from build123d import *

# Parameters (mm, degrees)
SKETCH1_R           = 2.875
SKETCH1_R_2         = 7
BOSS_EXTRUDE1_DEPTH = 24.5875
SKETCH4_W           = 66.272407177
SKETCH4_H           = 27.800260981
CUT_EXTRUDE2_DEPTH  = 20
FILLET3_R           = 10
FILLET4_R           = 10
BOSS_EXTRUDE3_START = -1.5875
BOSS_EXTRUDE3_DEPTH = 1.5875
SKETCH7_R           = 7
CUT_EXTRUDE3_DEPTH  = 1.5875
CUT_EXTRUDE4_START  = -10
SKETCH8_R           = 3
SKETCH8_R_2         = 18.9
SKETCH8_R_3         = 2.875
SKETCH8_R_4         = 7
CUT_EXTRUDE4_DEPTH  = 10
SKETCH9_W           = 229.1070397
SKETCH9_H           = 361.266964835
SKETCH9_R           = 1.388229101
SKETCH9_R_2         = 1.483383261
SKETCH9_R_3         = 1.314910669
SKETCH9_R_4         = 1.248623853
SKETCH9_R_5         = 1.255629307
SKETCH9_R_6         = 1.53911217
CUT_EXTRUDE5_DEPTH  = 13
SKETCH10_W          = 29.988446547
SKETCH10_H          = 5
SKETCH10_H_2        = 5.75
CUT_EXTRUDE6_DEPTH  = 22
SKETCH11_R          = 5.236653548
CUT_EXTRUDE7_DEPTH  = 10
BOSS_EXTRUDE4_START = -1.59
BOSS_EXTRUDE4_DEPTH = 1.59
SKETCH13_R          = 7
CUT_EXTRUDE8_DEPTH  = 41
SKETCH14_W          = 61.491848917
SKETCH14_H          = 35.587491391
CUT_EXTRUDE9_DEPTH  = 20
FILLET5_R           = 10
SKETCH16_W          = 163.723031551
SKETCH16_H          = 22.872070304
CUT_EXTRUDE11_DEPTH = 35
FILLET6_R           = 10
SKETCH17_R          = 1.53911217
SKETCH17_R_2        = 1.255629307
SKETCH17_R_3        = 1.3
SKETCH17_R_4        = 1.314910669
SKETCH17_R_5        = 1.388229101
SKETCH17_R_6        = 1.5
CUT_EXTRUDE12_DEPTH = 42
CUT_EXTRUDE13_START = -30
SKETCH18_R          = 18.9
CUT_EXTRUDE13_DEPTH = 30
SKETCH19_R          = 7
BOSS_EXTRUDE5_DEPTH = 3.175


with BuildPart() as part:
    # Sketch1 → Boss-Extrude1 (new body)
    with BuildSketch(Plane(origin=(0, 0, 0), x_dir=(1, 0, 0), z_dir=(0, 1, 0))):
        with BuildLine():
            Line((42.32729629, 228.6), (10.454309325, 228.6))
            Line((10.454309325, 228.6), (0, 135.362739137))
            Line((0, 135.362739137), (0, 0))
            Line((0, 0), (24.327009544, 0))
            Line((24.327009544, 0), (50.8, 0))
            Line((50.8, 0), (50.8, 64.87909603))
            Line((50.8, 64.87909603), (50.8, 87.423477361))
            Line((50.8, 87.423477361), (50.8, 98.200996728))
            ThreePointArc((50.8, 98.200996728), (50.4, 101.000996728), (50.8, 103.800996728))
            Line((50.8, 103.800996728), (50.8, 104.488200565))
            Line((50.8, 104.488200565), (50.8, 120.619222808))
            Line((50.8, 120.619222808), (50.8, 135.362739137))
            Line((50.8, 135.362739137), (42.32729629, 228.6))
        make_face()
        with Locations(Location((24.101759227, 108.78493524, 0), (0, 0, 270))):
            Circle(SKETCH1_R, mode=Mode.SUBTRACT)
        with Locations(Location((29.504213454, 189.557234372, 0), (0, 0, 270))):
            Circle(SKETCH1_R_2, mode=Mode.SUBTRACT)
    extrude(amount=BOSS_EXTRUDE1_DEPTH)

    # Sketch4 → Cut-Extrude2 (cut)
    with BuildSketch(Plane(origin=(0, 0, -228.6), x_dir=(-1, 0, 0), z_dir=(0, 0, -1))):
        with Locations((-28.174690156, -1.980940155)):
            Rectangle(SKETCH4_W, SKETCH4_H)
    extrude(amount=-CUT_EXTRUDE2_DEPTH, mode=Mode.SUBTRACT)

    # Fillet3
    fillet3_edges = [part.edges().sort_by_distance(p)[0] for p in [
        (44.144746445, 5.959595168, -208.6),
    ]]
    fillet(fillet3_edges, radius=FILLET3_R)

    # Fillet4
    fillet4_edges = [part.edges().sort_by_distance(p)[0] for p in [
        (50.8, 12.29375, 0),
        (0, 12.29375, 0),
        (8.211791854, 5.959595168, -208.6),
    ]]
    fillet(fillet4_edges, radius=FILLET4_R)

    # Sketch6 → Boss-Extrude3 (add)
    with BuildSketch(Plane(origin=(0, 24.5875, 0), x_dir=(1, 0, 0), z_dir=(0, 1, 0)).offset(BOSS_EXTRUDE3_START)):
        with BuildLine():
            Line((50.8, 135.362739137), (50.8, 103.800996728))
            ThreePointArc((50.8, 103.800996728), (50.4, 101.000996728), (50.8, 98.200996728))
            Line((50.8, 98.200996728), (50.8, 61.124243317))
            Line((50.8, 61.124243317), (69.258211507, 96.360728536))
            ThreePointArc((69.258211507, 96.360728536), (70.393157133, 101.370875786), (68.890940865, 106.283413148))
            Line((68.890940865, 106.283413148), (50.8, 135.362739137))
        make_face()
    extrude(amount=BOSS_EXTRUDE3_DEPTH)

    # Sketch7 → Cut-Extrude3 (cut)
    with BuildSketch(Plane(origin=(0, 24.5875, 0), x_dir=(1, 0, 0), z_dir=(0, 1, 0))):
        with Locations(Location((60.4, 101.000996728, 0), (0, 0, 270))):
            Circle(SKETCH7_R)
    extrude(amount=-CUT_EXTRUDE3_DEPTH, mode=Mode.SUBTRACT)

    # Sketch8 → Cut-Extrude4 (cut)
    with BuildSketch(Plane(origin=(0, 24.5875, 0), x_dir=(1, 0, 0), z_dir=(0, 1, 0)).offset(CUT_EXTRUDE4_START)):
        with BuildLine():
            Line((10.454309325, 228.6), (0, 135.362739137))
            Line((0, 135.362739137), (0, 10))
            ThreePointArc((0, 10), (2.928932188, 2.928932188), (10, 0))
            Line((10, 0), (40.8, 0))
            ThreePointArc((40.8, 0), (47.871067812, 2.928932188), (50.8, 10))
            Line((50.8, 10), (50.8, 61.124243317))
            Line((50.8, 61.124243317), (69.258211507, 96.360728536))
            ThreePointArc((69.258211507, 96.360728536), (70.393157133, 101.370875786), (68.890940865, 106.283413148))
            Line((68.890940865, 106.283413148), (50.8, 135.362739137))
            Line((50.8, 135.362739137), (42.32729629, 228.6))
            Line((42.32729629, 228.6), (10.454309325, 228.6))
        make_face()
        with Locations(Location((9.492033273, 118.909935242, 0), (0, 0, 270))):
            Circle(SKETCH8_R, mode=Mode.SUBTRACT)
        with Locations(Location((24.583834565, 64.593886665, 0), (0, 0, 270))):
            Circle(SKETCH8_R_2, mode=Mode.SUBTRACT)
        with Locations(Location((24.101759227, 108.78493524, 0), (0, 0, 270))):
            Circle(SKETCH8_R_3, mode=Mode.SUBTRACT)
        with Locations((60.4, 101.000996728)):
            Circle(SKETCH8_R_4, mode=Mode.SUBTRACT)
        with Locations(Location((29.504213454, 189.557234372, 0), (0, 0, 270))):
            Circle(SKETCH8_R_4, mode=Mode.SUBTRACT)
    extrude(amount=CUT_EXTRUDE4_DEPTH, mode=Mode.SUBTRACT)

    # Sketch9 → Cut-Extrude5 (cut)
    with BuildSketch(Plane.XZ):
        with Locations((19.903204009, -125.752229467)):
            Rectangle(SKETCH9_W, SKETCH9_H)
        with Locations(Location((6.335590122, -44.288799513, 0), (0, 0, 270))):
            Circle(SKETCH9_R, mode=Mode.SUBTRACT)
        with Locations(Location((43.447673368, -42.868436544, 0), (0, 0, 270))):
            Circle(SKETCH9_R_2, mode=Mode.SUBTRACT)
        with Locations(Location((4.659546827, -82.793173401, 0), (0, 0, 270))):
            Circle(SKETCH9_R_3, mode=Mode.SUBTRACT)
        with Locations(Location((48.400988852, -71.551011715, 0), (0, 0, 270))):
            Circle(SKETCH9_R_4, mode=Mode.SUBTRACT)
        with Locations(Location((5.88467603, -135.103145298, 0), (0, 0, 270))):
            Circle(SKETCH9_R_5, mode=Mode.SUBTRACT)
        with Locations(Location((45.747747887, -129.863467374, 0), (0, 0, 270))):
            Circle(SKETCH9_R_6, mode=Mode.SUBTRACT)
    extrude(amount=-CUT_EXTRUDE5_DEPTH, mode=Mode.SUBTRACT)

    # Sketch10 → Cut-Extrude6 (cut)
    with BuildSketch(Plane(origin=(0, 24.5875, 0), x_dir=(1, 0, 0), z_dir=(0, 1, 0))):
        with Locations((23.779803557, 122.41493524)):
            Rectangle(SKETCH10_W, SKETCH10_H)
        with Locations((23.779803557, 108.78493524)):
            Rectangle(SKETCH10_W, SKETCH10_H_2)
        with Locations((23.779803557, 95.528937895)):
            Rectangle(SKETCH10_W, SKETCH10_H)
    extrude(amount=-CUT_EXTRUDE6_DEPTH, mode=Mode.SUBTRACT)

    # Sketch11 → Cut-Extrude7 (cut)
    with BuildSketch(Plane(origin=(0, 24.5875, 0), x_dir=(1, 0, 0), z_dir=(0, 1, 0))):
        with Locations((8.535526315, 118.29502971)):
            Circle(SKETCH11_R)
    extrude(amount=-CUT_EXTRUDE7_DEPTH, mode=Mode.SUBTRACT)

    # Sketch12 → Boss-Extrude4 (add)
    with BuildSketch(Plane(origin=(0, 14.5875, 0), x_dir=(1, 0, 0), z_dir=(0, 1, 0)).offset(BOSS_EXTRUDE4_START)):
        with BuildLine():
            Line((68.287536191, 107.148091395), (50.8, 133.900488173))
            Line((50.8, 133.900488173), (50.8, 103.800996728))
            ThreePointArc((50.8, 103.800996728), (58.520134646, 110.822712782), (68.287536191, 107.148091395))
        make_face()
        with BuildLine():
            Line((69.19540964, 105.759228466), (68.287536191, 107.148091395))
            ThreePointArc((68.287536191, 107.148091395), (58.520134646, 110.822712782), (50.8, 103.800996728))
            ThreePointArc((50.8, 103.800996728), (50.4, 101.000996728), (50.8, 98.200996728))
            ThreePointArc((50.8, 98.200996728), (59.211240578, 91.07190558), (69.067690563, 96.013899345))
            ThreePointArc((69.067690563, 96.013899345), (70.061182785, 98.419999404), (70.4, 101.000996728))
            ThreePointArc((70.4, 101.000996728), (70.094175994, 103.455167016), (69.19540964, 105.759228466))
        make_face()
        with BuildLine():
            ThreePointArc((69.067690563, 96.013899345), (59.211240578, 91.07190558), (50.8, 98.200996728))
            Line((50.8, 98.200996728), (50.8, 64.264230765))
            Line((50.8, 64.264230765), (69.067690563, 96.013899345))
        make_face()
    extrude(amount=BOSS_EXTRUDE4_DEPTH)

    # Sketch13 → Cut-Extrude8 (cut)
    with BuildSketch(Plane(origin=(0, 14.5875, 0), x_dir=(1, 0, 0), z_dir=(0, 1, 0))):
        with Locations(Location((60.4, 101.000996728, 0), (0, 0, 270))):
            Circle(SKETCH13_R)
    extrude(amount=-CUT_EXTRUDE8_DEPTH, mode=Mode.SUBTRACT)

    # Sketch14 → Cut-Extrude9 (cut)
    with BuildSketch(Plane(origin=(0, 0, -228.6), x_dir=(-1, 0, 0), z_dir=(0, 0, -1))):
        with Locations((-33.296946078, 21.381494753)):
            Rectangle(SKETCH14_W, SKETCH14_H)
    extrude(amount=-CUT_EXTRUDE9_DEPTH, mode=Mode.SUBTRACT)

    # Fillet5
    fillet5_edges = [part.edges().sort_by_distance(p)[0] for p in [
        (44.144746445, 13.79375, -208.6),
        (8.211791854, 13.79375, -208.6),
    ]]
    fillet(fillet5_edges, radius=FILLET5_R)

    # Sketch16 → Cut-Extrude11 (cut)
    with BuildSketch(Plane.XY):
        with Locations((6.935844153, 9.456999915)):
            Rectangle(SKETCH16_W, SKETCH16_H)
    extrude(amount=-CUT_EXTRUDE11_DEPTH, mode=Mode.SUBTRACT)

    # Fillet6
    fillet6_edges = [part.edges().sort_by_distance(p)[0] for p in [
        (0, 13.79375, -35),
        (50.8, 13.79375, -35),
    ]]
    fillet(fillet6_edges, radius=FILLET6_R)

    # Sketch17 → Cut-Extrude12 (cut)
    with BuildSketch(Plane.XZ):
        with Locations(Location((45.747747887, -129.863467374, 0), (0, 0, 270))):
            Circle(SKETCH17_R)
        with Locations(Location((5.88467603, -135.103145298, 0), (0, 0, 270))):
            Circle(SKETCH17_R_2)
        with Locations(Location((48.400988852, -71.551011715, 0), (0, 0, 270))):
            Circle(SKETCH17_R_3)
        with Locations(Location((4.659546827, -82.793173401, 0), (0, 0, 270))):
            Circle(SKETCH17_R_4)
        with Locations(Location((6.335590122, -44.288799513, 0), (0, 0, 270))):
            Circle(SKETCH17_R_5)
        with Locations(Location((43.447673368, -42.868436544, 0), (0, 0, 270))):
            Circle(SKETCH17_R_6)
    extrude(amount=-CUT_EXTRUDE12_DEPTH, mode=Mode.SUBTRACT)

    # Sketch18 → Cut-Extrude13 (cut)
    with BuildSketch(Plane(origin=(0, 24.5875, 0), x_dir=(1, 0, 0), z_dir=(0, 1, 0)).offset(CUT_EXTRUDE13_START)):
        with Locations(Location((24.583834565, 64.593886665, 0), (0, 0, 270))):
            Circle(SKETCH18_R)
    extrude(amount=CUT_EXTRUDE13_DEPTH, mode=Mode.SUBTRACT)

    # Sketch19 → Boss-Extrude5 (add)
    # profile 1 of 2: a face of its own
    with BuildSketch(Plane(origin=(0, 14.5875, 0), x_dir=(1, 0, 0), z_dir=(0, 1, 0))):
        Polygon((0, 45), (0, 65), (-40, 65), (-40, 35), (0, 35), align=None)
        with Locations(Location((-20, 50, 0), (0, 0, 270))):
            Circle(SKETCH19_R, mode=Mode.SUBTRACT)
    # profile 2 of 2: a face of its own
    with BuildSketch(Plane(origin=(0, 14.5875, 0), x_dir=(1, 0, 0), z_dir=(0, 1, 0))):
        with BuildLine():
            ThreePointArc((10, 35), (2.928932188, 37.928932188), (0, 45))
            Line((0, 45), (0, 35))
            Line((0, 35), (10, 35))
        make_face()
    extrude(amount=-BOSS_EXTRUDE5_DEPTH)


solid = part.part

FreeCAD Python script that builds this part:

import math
import FreeCAD as App
import Part
import Sketcher

V = App.Vector
Q = App.Units.Quantity


def edges_at(feature, points):
    """Names of the edges that pass closest to the given points."""
    edges = feature.Shape.Edges
    near = lambda p: min(range(len(edges)), key=lambda i: edges[i].distToShape(Part.Vertex(*p))[0])
    return sorted({f"Edge{near(p) + 1}" for p in points})

doc = App.newDocument("Part")
body = doc.addObject("PartDesign::Body", "Body")

sketch1 = doc.addObject("Sketcher::SketchObject", "Sketch")
body.addObject(sketch1)
sketch1.AttachmentSupport = (doc.XZ_Plane, [""])
sketch1.MapMode = "FlatFace"
sketch1.addGeometry([
    Part.LineSegment(V(42.3, -228.6, 0), V(10.5, -228.6, 0)),
    Part.LineSegment(V(10.5, -228.6, 0), V(0, -135.4, 0)),
    Part.LineSegment(V(0, -135.4, 0), V(0, 0, 0)),
    Part.LineSegment(V(0, 0, 0), V(50.8, 0, 0)),
    Part.LineSegment(V(50.8, 0, 0), V(50.8, -98.2, 0)),
    Part.ArcOfCircle(Part.Circle(V(60.4, -101, 0), V(0, 0, 1), 10), math.radians(164), math.radians(196)),
    Part.LineSegment(V(50.8, -103.8, 0), V(50.8, -135.4, 0)),
    Part.LineSegment(V(50.8, -135.4, 0), V(42.3, -228.6, 0)),
    Part.Circle(V(24.1, -108.8, 0), V(0, 0, 1), 2.9),
    Part.Circle(V(29.5, -189.6, 0), V(0, 0, 1), 7),
], False)
sketch1.addConstraint([
    Sketcher.Constraint("Coincident", 0, 2, 1, 1),
    Sketcher.Constraint("Coincident", 1, 2, 2, 1),
    Sketcher.Constraint("Coincident", 2, 2, 3, 1),
    Sketcher.Constraint("Coincident", 3, 2, 4, 1),
    Sketcher.Constraint("Coincident", 4, 2, 5, 1),
    Sketcher.Constraint("Coincident", 5, 2, 6, 1),
    Sketcher.Constraint("Coincident", 6, 2, 7, 1),
    Sketcher.Constraint("Coincident", 7, 2, 0, 1),
    Sketcher.Constraint("Horizontal", 0),
    Sketcher.Constraint("Vertical", 2),
    Sketcher.Constraint("Horizontal", 3),
    Sketcher.Constraint("Vertical", 4),
    Sketcher.Constraint("Vertical", 6),
    Sketcher.Constraint("Coincident", 2, 2, -1, 1),
    Sketcher.Constraint("Horizontal", 1, 2, 6, 2),
    Sketcher.Constraint("Vertical", 4, 2, 5, 2),
    Sketcher.Constraint("Diameter", 9, Q("14 mm")),
    Sketcher.Constraint("Radius", 5, Q("10 mm")),
    Sketcher.Constraint("Diameter", 8, Q("5.75 mm")),
    Sketcher.Constraint("DistanceX", 3, 1, 3, 2, Q("50.8 mm")),
    Sketcher.Constraint("DistanceX", -1, 1, 5, 3, Q("60.4 mm")),
    Sketcher.Constraint("DistanceY", 0, 2, -1, 1, Q("228.6 mm")),
    Sketcher.Constraint("DistanceY", 2, 1, 2, 2, Q("135.362739 mm")),
    Sketcher.Constraint("DistanceY", 9, 3, 8, 3, Q("80.772299 mm")),
    Sketcher.Constraint("Distance", 1, Q("93.821529 mm")),
    Sketcher.Constraint("DistanceX", 0, 2, 0, 1, Q("31.872987 mm")),
    Sketcher.Constraint("DistanceY", 4, 2, 4, 1, Q("98.200997 mm")),
    Sketcher.Constraint("DistanceX", -1, 1, 8, 3, Q("24.101759 mm")),
    Sketcher.Constraint("DistanceY", 8, 3, 5, 3, Q("7.783939 mm")),
    Sketcher.Constraint("DistanceX", -1, 1, 9, 3, Q("29.504213 mm")),
])
pad1 = doc.addObject("PartDesign::Pad", "Pad")
body.addObject(pad1)
pad1.Profile = sketch1
pad1.Length = 24.5875
pad1.Reversed = True

sketch2 = doc.addObject("Sketcher::SketchObject", "Sketch001")
body.addObject(sketch2)
sketch2.AttachmentSupport = (doc.XY_Plane, [""])
sketch2.MapMode = "FlatFace"
sketch2.AttachmentOffset = App.Placement(V(0, 0, -228.6), App.Rotation())
sketch2.addGeometry([
    Part.LineSegment(V(61, 12, 0), V(61, -16, 0)),
    Part.LineSegment(V(61, -16, 0), V(-5, -16, 0)),
    Part.LineSegment(V(-5, -16, 0), V(-5, 12, 0)),
    Part.LineSegment(V(-5, 12, 0), V(61, 12, 0)),
], False)
sketch2.addConstraint([
    Sketcher.Constraint("Coincident", 0, 2, 1, 1),
    Sketcher.Constraint("Coincident", 1, 2, 2, 1),
    Sketcher.Constraint("Coincident", 2, 2, 3, 1),
    Sketcher.Constraint("Coincident", 3, 2, 0, 1),
    Sketcher.Constraint("Vertical", 0),
    Sketcher.Constraint("Horizontal", 1),
    Sketcher.Constraint("Vertical", 2),
    Sketcher.Constraint("Horizontal", 3),
    Sketcher.Constraint("DistanceY", 0, 2, 0, 1, Q("27.800261 mm")),
    Sketcher.Constraint("DistanceX", 1, 2, 1, 1, Q("66.272407 mm")),
    Sketcher.Constraint("DistanceY", 0, 2, -1, 1, Q("15.881071 mm")),
    Sketcher.Constraint("DistanceX", -1, 1, 0, 2, Q("61.310894 mm")),
])
pocket1 = doc.addObject("PartDesign::Pocket", "Pocket")
body.addObject(pocket1)
pocket1.Profile = sketch2
pocket1.Length = 20
pocket1.Reversed = True
doc.recompute()

fillet = doc.addObject("PartDesign::Fillet", "Fillet")
body.addObject(fillet)
fillet.Base = (pocket1, edges_at(pocket1, [(44.145, 5.96, -208.6)]))
fillet.Radius = 10
doc.recompute()

fillet2 = doc.addObject("PartDesign::Fillet", "Fillet001")
body.addObject(fillet2)
fillet2.Base = (fillet, edges_at(fillet, [(50.8, 12.294, 0), (0, 12.294, 0), (8.212, 5.96, -208.6)]))
fillet2.Radius = 10

sketch3 = doc.addObject("Sketcher::SketchObject", "Sketch002")
body.addObject(sketch3)
sketch3.AttachmentSupport = (doc.XZ_Plane, [""])
sketch3.MapMode = "FlatFace"
sketch3.AttachmentOffset = App.Placement(V(0, 0, -23), App.Rotation())
sketch3.addGeometry([
    Part.LineSegment(V(51, -135, 0), V(51, -104, 0)),
    Part.ArcOfCircle(Part.Circle(V(60, -101, 0), V(0, 0, 1), 10), math.radians(164), math.radians(196)),
    Part.LineSegment(V(51, -98, 0), V(51, -61, 0)),
    Part.LineSegment(V(51, -61, 0), V(69, -96, 0)),
    Part.ArcOfCircle(Part.Circle(V(60, -101, 0), V(0, 0, 1), 10), math.radians(-32), math.radians(28)),
    Part.LineSegment(V(69, -106, 0), V(51, -135, 0)),
], False)
sketch3.addConstraint([
    Sketcher.Constraint("Coincident", 0, 2, 1, 2),
    Sketcher.Constraint("Coincident", 1, 1, 2, 1),
    Sketcher.Constraint("Coincident", 2, 2, 3, 1),
    Sketcher.Constraint("Tangent", 3, 2, 4, 2),
    Sketcher.Constraint("Tangent", 4, 1, 5, 1),
    Sketcher.Constraint("Coincident", 5, 2, 0, 1),
    Sketcher.Constraint("Vertical", 0),
    Sketcher.Constraint("Vertical", 2),
    Sketcher.Constraint("Coincident", 4, 3, 1, 3),
    Sketcher.Constraint("Equal", 1, 4),
    Sketcher.Constraint("Vertical", 0, 2, 1, 1),
    Sketcher.Constraint("Radius", 1, Q("10 mm")),
    Sketcher.Constraint("DistanceX", -1, 1, 1, 3, Q("60.4 mm")),
    Sketcher.Constraint("DistanceX", -1, 1, 0, 2, Q("50.8 mm")),
    Sketcher.Constraint("Distance", 3, Q("39.778329 mm")),
    Sketcher.Constraint("DistanceY", 0, 1, 0, 2, Q("31.561742 mm")),
    Sketcher.Constraint("DistanceY", 3, 2, -1, 1, Q("96.360729 mm")),
])
pad2 = doc.addObject("PartDesign::Pad", "Pad001")
body.addObject(pad2)
pad2.Profile = sketch3
pad2.Length = 1.5875
pad2.Reversed = True

sketch4 = doc.addObject("Sketcher::SketchObject", "Sketch003")
body.addObject(sketch4)
sketch4.AttachmentSupport = (doc.XZ_Plane, [""])
sketch4.MapMode = "FlatFace"
sketch4.AttachmentOffset = App.Placement(V(0, 0, -24.5875), App.Rotation())
sketch4.addGeometry(Part.Circle(V(60, -101, 0), V(0, 0, 1), 7), False)
sketch4.addConstraint([
    Sketcher.Constraint("Diameter", 0, Q("14 mm")),
    Sketcher.Constraint("DistanceX", -1, 1, 0, 3, Q("60.4 mm")),
    Sketcher.Constraint("DistanceY", 0, 3, -1, 1, Q("101.000997 mm")),
])
pocket2 = doc.addObject("PartDesign::Pocket", "Pocket001")
body.addObject(pocket2)
pocket2.Profile = sketch4
pocket2.Length = 1.5875
pocket2.Reversed = True

sketch5 = doc.addObject("Sketcher::SketchObject", "Sketch004")
body.addObject(sketch5)
sketch5.AttachmentSupport = (doc.XZ_Plane, [""])
sketch5.MapMode = "FlatFace"
sketch5.AttachmentOffset = App.Placement(V(0, 0, -14.5875), App.Rotation())
sketch5.addGeometry([
    Part.LineSegment(V(10.5, -228.6, 0), V(0, -135.4, 0)),
    Part.LineSegment(V(0, -135.4, 0), V(0, -10, 0)),
    Part.ArcOfCircle(Part.Circle(V(10, -10, 0), V(0, 0, 1), 10), math.radians(90), math.radians(180)),
    Part.LineSegment(V(10, 0, 0), V(40.8, 0, 0)),
    Part.ArcOfCircle(Part.Circle(V(40.8, -10, 0), V(0, 0, 1), 10), math.radians(0), math.radians(90)),
    Part.LineSegment(V(50.8, -10, 0), V(50.8, -61.1, 0)),
    Part.LineSegment(V(50.8, -61.1, 0), V(69.3, -96.4, 0)),
    Part.ArcOfCircle(Part.Circle(V(60.4, -101, 0), V(0, 0, 1), 10), math.radians(-32), math.radians(28)),
    Part.LineSegment(V(68.9, -106.3, 0), V(50.8, -135.4, 0)),
    Part.LineSegment(V(50.8, -135.4, 0), V(42.3, -228.6, 0)),
    Part.LineSegment(V(42.3, -228.6, 0), V(10.5, -228.6, 0)),
    Part.Circle(V(24.6, -64.6, 0), V(0, 0, 1), 18.9),
    Part.Circle(V(9.5, -118.9, 0), V(0, 0, 1), 3),
    Part.Circle(V(24.1, -108.8, 0), V(0, 0, 1), 2.9),
    Part.Circle(V(60.4, -101, 0), V(0, 0, 1), 7),
    Part.Circle(V(29.5, -189.6, 0), V(0, 0, 1), 7),
], False)
sketch5.addConstraint([
    Sketcher.Constraint("Coincident", 0, 2, 1, 1),
    Sketcher.Constraint("Tangent", 1, 2, 2, 2),
    Sketcher.Constraint("Tangent", 2, 1, 3, 1),
    Sketcher.Constraint("Tangent", 3, 2, 4, 2),
    Sketcher.Constraint("Tangent", 4, 1, 5, 1),
    Sketcher.Constraint("Coincident", 5, 2, 6, 1),
    Sketcher.Constraint("Tangent", 6, 2, 7, 2),
    Sketcher.Constraint("Tangent", 7, 1, 8, 1),
    Sketcher.Constraint("Coincident", 8, 2, 9, 1),
    Sketcher.Constraint("Coincident", 9, 2, 10, 1),
    Sketcher.Constraint("Coincident", 10, 2, 0, 1),
    Sketcher.Constraint("Vertical", 1),
    Sketcher.Constraint("Horizontal", 3),
    Sketcher.Constraint("Vertical", 5),
    Sketcher.Constraint("Horizontal", 10),
    Sketcher.Constraint("Coincident", 14, 3, 7, 3),
    Sketcher.Constraint("Equal", 2, 4),
    Sketcher.Constraint("Equal", 4, 7),
    Sketcher.Constraint("Equal", 14, 15),
    Sketcher.Constraint("PointOnObject", 0, 2, -2),
    Sketcher.Constraint("PointOnObject", 2, 1, -1),
    Sketcher.Constraint("Horizontal", 0, 2, 8, 2),
    Sketcher.Constraint("Vertical", 5, 2, 8, 2),
    Sketcher.Constraint("Diameter", 12, Q("6 mm")),
    Sketcher.Constraint("Diameter", 14, Q("14 mm")),
    Sketcher.Constraint("Radius", 2, Q("10 mm")),
    Sketcher.Constraint("Diameter", 11, Q("37.8 mm")),
    Sketcher.Constraint("Diameter", 13, Q("5.75 mm")),
    Sketcher.Constraint("DistanceX", 3, 1, 3, 2, Q("30.8 mm")),
    Sketcher.Constraint("DistanceX", -1, 1, 7, 3, Q("60.4 mm")),
    Sketcher.Constraint("DistanceY", 9, 2, -1, 1, Q("228.6 mm")),
    Sketcher.Constraint("DistanceY", 12, 3, 13, 3, Q("10.125 mm")),
    Sketcher.Constraint("DistanceY", 1, 1, 1, 2, Q("125.362739 mm")),
    Sketcher.Constraint("DistanceX", 12, 3, 11, 3, Q("15.091801 mm")),
    Sketcher.Constraint("DistanceY", 15, 3, 12, 3, Q("70.647299 mm")),
    Sketcher.Constraint("Distance", 0, Q("93.821529 mm")),
    Sketcher.Constraint("Distance", 6, Q("39.778329 mm")),
    Sketcher.Constraint("DistanceX", 10, 2, 10, 1, Q("31.872987 mm")),
    Sketcher.Constraint("DistanceY", 5, 2, 5, 1, Q("51.124243 mm")),
    Sketcher.Constraint("DistanceX", -1, 1, 13, 3, Q("24.101759 mm")),
    Sketcher.Constraint("DistanceY", 7, 3, 11, 3, Q("36.40711 mm")),
    Sketcher.Constraint("DistanceY", 12, 3, 7, 3, Q("17.908939 mm")),
    Sketcher.Constraint("DistanceX", 12, 3, 15, 3, Q("20.01218 mm")),
    Sketcher.Constraint("DistanceX", -1, 1, 11, 3, Q("24.583835 mm")),
])
pocket3 = doc.addObject("PartDesign::Pocket", "Pocket002")
body.addObject(pocket3)
pocket3.Profile = sketch5
pocket3.Length = 10

sketch6 = doc.addObject("Sketcher::SketchObject", "Sketch005")
body.addObject(sketch6)
sketch6.AttachmentSupport = (doc.XZ_Plane, [""])
sketch6.MapMode = "FlatFace"
sketch6.addGeometry([
    Part.LineSegment(V(-94.7, 54.9, 0), V(-94.7, -306.4, 0)),
    Part.LineSegment(V(-94.7, -306.4, 0), V(134.5, -306.4, 0)),
    Part.LineSegment(V(134.5, -306.4, 0), V(134.5, 54.9, 0)),
    Part.LineSegment(V(134.5, 54.9, 0), V(-94.7, 54.9, 0)),
    Part.Circle(V(5.9, -135.1, 0), V(0, 0, 1), 1.3),
    Part.Circle(V(45.7, -129.9, 0), V(0, 0, 1), 1.5),
    Part.Circle(V(4.7, -82.8, 0), V(0, 0, 1), 1.3),
    Part.Circle(V(6.3, -44.3, 0), V(0, 0, 1), 1.4),
    Part.Circle(V(48.4, -71.6, 0), V(0, 0, 1), 1.2),
    Part.Circle(V(43.4, -42.9, 0), V(0, 0, 1), 1.5),
], False)
sketch6.addConstraint([
    Sketcher.Constraint("Coincident", 0, 2, 1, 1),
    Sketcher.Constraint("Coincident", 1, 2, 2, 1),
    Sketcher.Constraint("Coincident", 2, 2, 3, 1),
    Sketcher.Constraint("Coincident", 3, 2, 0, 1),
    Sketcher.Constraint("Vertical", 0),
    Sketcher.Constraint("Horizontal", 1),
    Sketcher.Constraint("Vertical", 2),
    Sketcher.Constraint("Horizontal", 3),
    Sketcher.Constraint("Diameter", 4, Q("2.511259 mm")),
    Sketcher.Constraint("Diameter", 6, Q("2.629821 mm")),
    Sketcher.Constraint("Diameter", 7, Q("2.776458 mm")),
    Sketcher.Constraint("Diameter", 5, Q("3.078224 mm")),
    Sketcher.Constraint("Diameter", 8, Q("2.497248 mm")),
    Sketcher.Constraint("Diameter", 9, Q("2.966767 mm")),
    Sketcher.Constraint("DistanceX", 1, 1, 1, 2, Q("229.10704 mm")),
    Sketcher.Constraint("DistanceY", 7, 3, -1, 1, Q("44.2888 mm")),
    Sketcher.Constraint("DistanceX", 6, 3, 5, 3, Q("41.088201 mm")),
    Sketcher.Constraint("DistanceX", 7, 3, 8, 3, Q("42.065399 mm")),
    Sketcher.Constraint("DistanceY", 0, 2, 8, 3, Q("234.8347 mm")),
    Sketcher.Constraint("DistanceY", 4, 3, 3, 2, Q("189.984398 mm")),
    Sketcher.Constraint("DistanceY", 0, 2, 0, 1, Q("361.266965 mm")),
    Sketcher.Constraint("DistanceX", -1, 1, 7, 3, Q("6.33559 mm")),
    Sketcher.Constraint("DistanceY", 8, 3, -1, 1, Q("71.551012 mm")),
    Sketcher.Constraint("DistanceX", 4, 3, 5, 3, Q("39.863072 mm")),
    Sketcher.Constraint("DistanceY", 4, 3, 6, 3, Q("52.309972 mm")),
    Sketcher.Constraint("DistanceX", 5, 3, 8, 3, Q("2.653241 mm")),
    Sketcher.Constraint("DistanceY", 5, 3, 9, 3, Q("86.995031 mm")),
    Sketcher.Constraint("DistanceY", 4, 3, 9, 3, Q("92.234709 mm")),
    Sketcher.Constraint("DistanceX", 0, 2, 4, 3, Q("100.534992 mm")),
    Sketcher.Constraint("DistanceX", 9, 3, 2, 2, Q("91.00905 mm")),
])
pocket4 = doc.addObject("PartDesign::Pocket", "Pocket003")
body.addObject(pocket4)
pocket4.Profile = sketch6
pocket4.Length = 13

sketch7 = doc.addObject("Sketcher::SketchObject", "Sketch006")
body.addObject(sketch7)
sketch7.AttachmentSupport = (doc.XZ_Plane, [""])
sketch7.MapMode = "FlatFace"
sketch7.AttachmentOffset = App.Placement(V(0, 0, -24.5875), App.Rotation())
sketch7.addGeometry([
    Part.LineSegment(V(9, -125, 0), V(9, -120, 0)),
    Part.LineSegment(V(9, -120, 0), V(39, -120, 0)),
    Part.LineSegment(V(39, -120, 0), V(39, -125, 0)),
    Part.LineSegment(V(39, -125, 0), V(9, -125, 0)),
    Part.LineSegment(V(9, -112, 0), V(9, -106, 0)),
    Part.LineSegment(V(9, -106, 0), V(39, -106, 0)),
    Part.LineSegment(V(39, -106, 0), V(39, -112, 0)),
    Part.LineSegment(V(39, -112, 0), V(9, -112, 0)),
    Part.LineSegment(V(9, -98, 0), V(9, -93, 0)),
    Part.LineSegment(V(9, -93, 0), V(39, -93, 0)),
    Part.LineSegment(V(39, -93, 0), V(39, -98, 0)),
    Part.LineSegment(V(39, -98, 0), V(9, -98, 0)),
], False)
sketch7.addConstraint([
    Sketcher.Constraint("Coincident", 0, 2, 1, 1),
    Sketcher.Constraint("Coincident", 1, 2, 2, 1),
    Sketcher.Constraint("Coincident", 2, 2, 3, 1),
    Sketcher.Constraint("Coincident", 3, 2, 0, 1),
    Sketcher.Constraint("Coincident", 4, 2, 5, 1),
    Sketcher.Constraint("Coincident", 5, 2, 6, 1),
    Sketcher.Constraint("Coincident", 6, 2, 7, 1),
    Sketcher.Constraint("Coincident", 7, 2, 4, 1),
    Sketcher.Constraint("Coincident", 8, 2, 9, 1),
    Sketcher.Constraint("Coincident", 9, 2, 10, 1),
    Sketcher.Constraint("Coincident", 10, 2, 11, 1),
    Sketcher.Constraint("Coincident", 11, 2, 8, 1),
    Sketcher.Constraint("Vertical", 0),
    Sketcher.Constraint("Horizontal", 1),
    Sketcher.Constraint("Vertical", 2),
    Sketcher.Constraint("Horizontal", 3),
    Sketcher.Constraint("Vertical", 4),
    Sketcher.Constraint("Horizontal", 5),
    Sketcher.Constraint("Vertical", 6),
    Sketcher.Constraint("Horizontal", 7),
    Sketcher.Constraint("Vertical", 8),
    Sketcher.Constraint("Horizontal", 9),
    Sketcher.Constraint("Vertical", 10),
    Sketcher.Constraint("Horizontal", 11),
    Sketcher.Constraint("Vertical", 3, 2, 4, 2),
    Sketcher.Constraint("Vertical", 2, 2, 5, 2),
    Sketcher.Constraint("Vertical", 7, 2, 8, 2),
    Sketcher.Constraint("Vertical", 6, 2, 9, 2),
    Sketcher.Constraint("Equal", 2, 8),
    Sketcher.Constraint("DistanceY", 0, 1, 0, 2, Q("5 mm")),
    Sketcher.Constraint("DistanceY", 4, 1, 4, 2, Q("5.75 mm")),
    Sketcher.Constraint("DistanceY", 0, 2, 4, 2, Q("14.005 mm")),
    Sketcher.Constraint("DistanceX", 1, 1, 1, 2, Q("29.988447 mm")),
    Sketcher.Constraint("DistanceX", -1, 1, 0, 2, Q("8.78558 mm")),
    Sketcher.Constraint("DistanceY", 0, 2, -1, 1, Q("119.914935 mm")),
    Sketcher.Constraint("DistanceY", 8, 2, -1, 1, Q("93.028938 mm")),
])
pocket5 = doc.addObject("PartDesign::Pocket", "Pocket004")
body.addObject(pocket5)
pocket5.Profile = sketch7
pocket5.Length = 22
pocket5.Reversed = True

sketch8 = doc.addObject("Sketcher::SketchObject", "Sketch007")
body.addObject(sketch8)
sketch8.AttachmentSupport = (doc.XZ_Plane, [""])
sketch8.MapMode = "FlatFace"
sketch8.AttachmentOffset = App.Placement(V(0, 0, -24.5875), App.Rotation())
sketch8.addGeometry(Part.Circle(V(9, -118, 0), V(0, 0, 1), 5), False)
sketch8.addConstraint([
    Sketcher.Constraint("Diameter", 0, Q("10.473307 mm")),
    Sketcher.Constraint("DistanceY", 0, 3, -1, 1, Q("118.29503 mm")),
    Sketcher.Constraint("DistanceX", -1, 1, 0, 3, Q("8.535526 mm")),
])
pocket6 = doc.addObject("PartDesign::Pocket", "Pocket005")
body.addObject(pocket6)
pocket6.Profile = sketch8
pocket6.Length = 10
pocket6.Reversed = True

sketch9 = doc.addObject("Sketcher::SketchObject", "Sketch008")
body.addObject(sketch9)
sketch9.AttachmentSupport = (doc.XZ_Plane, [""])
sketch9.MapMode = "FlatFace"
sketch9.AttachmentOffset = App.Placement(V(0, 0, -12.9975), App.Rotation())
sketch9.addGeometry([
    Part.LineSegment(V(68.3, -107.1, 0), V(50.8, -133.9, 0)),
    Part.LineSegment(V(50.8, -133.9, 0), V(50.8, -103.8, 0)),
    Part.ArcOfCircle(Part.Circle(V(60.4, -101, 0), V(0, 0, 1), 10), math.radians(164), math.radians(196)),
    Part.LineSegment(V(50.8, -98.2, 0), V(50.8, -64.3, 0)),
    Part.LineSegment(V(50.8, -64.3, 0), V(69.1, -96, 0)),
    Part.ArcOfCircle(Part.Circle(V(60.4, -101, 0), V(0, 0, 1), 10), math.radians(0), math.radians(30)),
    Part.ArcOfCircle(Part.Circle(V(60.4, -101, 0), V(0, 0, 1), 10), math.radians(-28), math.radians(0)),
    Part.LineSegment(V(69.2, -105.8, 0), V(68.3, -107.1, 0)),
], False)
sketch9.addConstraint([
    Sketcher.Constraint("Coincident", 0, 2, 1, 1),
    Sketcher.Constraint("Coincident", 1, 2, 2, 2),
    Sketcher.Constraint("Coincident", 2, 1, 3, 1),
    Sketcher.Constraint("Coincident", 3, 2, 4, 1),
    Sketcher.Constraint("Tangent", 4, 2, 5, 2),
    Sketcher.Constraint("Tangent", 5, 1, 6, 2),
    Sketcher.Constraint("Coincident", 6, 1, 7, 1),
    Sketcher.Constraint("Coincident", 7, 2, 0, 1),
    Sketcher.Constraint("Vertical", 1),
    Sketcher.Constraint("Vertical", 3),
    Sketcher.Constraint("Coincident", 5, 3, 2, 3),
    Sketcher.Constraint("Equal", 2, 5),
    Sketcher.Constraint("Equal", 5, 6),
    Sketcher.Constraint("Parallel", 0, 7),
    Sketcher.Constraint("Horizontal", 6, 3, 5, 1),
    Sketcher.Constraint("Vertical", 1, 2, 2, 1),
    Sketcher.Constraint("Radius", 2, Q("10 mm")),
    Sketcher.Constraint("DistanceX", -1, 1, 2, 3, Q("60.4 mm")),
    Sketcher.Constraint("DistanceX", -1, 1, 0, 2, Q("50.8 mm")),
    Sketcher.Constraint("DistanceY", 1, 1, 1, 2, Q("30.099491 mm")),
    Sketcher.Constraint("DistanceY", 4, 2, -1, 1, Q("96.013899 mm")),
    Sketcher.Constraint("Distance", 7, Q("1.659269 mm")),
    Sketcher.Constraint("DistanceY", 3, 1, 3, 2, Q("33.936766 mm")),
    Sketcher.Constraint("DistanceX", -1, 1, 6, 1, Q("69.19541 mm")),
])
pad3 = doc.addObject("PartDesign::Pad", "Pad002")
body.addObject(pad3)
pad3.Profile = sketch9
pad3.Length = 1.59
pad3.Reversed = True

sketch10 = doc.addObject("Sketcher::SketchObject", "Sketch009")
body.addObject(sketch10)
sketch10.AttachmentSupport = (doc.XZ_Plane, [""])
sketch10.MapMode = "FlatFace"
sketch10.AttachmentOffset = App.Placement(V(0, 0, -14.5875), App.Rotation())
sketch10.addGeometry(Part.Circle(V(60, -101, 0), V(0, 0, 1), 7), False)
sketch10.addConstraint([
    Sketcher.Constraint("Diameter", 0, Q("14 mm")),
    Sketcher.Constraint("DistanceX", -1, 1, 0, 3, Q("60.4 mm")),
    Sketcher.Constraint("DistanceY", 0, 3, -1, 1, Q("101.000997 mm")),
])
pocket7 = doc.addObject("PartDesign::Pocket", "Pocket006")
body.addObject(pocket7)
pocket7.Profile = sketch10
pocket7.Length = 41
pocket7.Reversed = True

sketch11 = doc.addObject("Sketcher::SketchObject", "Sketch010")
body.addObject(sketch11)
sketch11.AttachmentSupport = (doc.XY_Plane, [""])
sketch11.MapMode = "FlatFace"
sketch11.AttachmentOffset = App.Placement(V(0, 0, -228.6), App.Rotation())
sketch11.addGeometry([
    Part.LineSegment(V(64, 39, 0), V(64, 4, 0)),
    Part.LineSegment(V(64, 4, 0), V(3, 4, 0)),
    Part.LineSegment(V(3, 4, 0), V(3, 39, 0)),
    Part.LineSegment(V(3, 39, 0), V(64, 39, 0)),
], False)
sketch11.addConstraint([
    Sketcher.Constraint("Coincident", 0, 2, 1, 1),
    Sketcher.Constraint("Coincident", 1, 2, 2, 1),
    Sketcher.Constraint("Coincident", 2, 2, 3, 1),
    Sketcher.Constraint("Coincident", 3, 2, 0, 1),
    Sketcher.Constraint("Vertical", 0),
    Sketcher.Constraint("Horizontal", 1),
    Sketcher.Constraint("Vertical", 2),
    Sketcher.Constraint("Horizontal", 3),
    Sketcher.Constraint("DistanceX", 1, 2, 1, 1, Q("61.491849 mm")),
    Sketcher.Constraint("DistanceY", 0, 2, 0, 1, Q("35.587491 mm")),
    Sketcher.Constraint("DistanceX", -1, 1, 0, 2, Q("64.042871 mm")),
    Sketcher.Constraint("DistanceY", -1, 1, 0, 2, Q("3.587749 mm")),
])
pocket8 = doc.addObject("PartDesign::Pocket", "Pocket007")
body.addObject(pocket8)
pocket8.Profile = sketch11
pocket8.Length = 20
pocket8.Reversed = True
doc.recompute()

fillet3 = doc.addObject("PartDesign::Fillet", "Fillet002")
body.addObject(fillet3)
fillet3.Base = (pocket8, edges_at(pocket8, [(44.145, 13.794, -208.6), (8.212, 13.794, -208.6)]))
fillet3.Radius = 10

sketch12 = doc.addObject("Sketcher::SketchObject", "Sketch011")
body.addObject(sketch12)
sketch12.AttachmentSupport = (doc.XY_Plane, [""])
sketch12.MapMode = "FlatFace"
sketch12.addGeometry([
    Part.LineSegment(V(-75, 21, 0), V(-75, -2, 0)),
    Part.LineSegment(V(-75, -2, 0), V(89, -2, 0)),
    Part.LineSegment(V(89, -2, 0), V(89, 21, 0)),
    Part.LineSegment(V(89, 21, 0), V(-75, 21, 0)),
], False)
sketch12.addConstraint([
    Sketcher.Constraint("Coincident", 0, 2, 1, 1),
    Sketcher.Constraint("Coincident", 1, 2, 2, 1),
    Sketcher.Constraint("Coincident", 2, 2, 3, 1),
    Sketcher.Constraint("Coincident", 3, 2, 0, 1),
    Sketcher.Constraint("Vertical", 0),
    Sketcher.Constraint("Horizontal", 1),
    Sketcher.Constraint("Vertical", 2),
    Sketcher.Constraint("Horizontal", 3),
    Sketcher.Constraint("DistanceX", 1, 1, 1, 2, Q("163.723032 mm")),
    Sketcher.Constraint("DistanceY", 0, 2, 0, 1, Q("22.87207 mm")),
    Sketcher.Constraint("DistanceX", 0, 2, -1, 1, Q("74.925672 mm")),
    Sketcher.Constraint("DistanceY", 0, 2, -1, 1, Q("1.979035 mm")),
])
pocket9 = doc.addObject("PartDesign::Pocket", "Pocket008")
body.addObject(pocket9)
pocket9.Profile = sketch12
pocket9.Length = 35
doc.recompute()

fillet4 = doc.addObject("PartDesign::Fillet", "Fillet003")
body.addObject(fillet4)
fillet4.Base = (pocket9, edges_at(pocket9, [(0, 13.794, -35), (50.8, 13.794, -35)]))
fillet4.Radius = 10

sketch13 = doc.addObject("Sketcher::SketchObject", "Sketch012")
body.addObject(sketch13)
sketch13.AttachmentSupport = (doc.XZ_Plane, [""])
sketch13.MapMode = "FlatFace"
sketch13.addGeometry([
    Part.Circle(V(45.7, -129.9, 0), V(0, 0, 1), 1.5),
    Part.Circle(V(5.9, -135.1, 0), V(0, 0, 1), 1.3),
    Part.Circle(V(48.4, -71.6, 0), V(0, 0, 1), 1.3),
    Part.Circle(V(4.7, -82.8, 0), V(0, 0, 1), 1.3),
    Part.Circle(V(6.3, -44.3, 0), V(0, 0, 1), 1.4),
    Part.Circle(V(43.4, -42.9, 0), V(0, 0, 1), 1.5),
], False)
sketch13.addConstraint([
    Sketcher.Constraint("Diameter", 5, Q("3 mm")),
    Sketcher.Constraint("Diameter", 2, Q("2.6 mm")),
    Sketcher.Constraint("Diameter", 1, Q("2.511259 mm")),
    Sketcher.Constraint("Diameter", 3, Q("2.629821 mm")),
    Sketcher.Constraint("Diameter", 4, Q("2.776458 mm")),
    Sketcher.Constraint("Diameter", 0, Q("3.078224 mm")),
    Sketcher.Constraint("DistanceY", 4, 3, -1, 1, Q("44.2888 mm")),
    Sketcher.Constraint("DistanceX", 3, 3, 0, 3, Q("41.088201 mm")),
    Sketcher.Constraint("DistanceX", 4, 3, 2, 3, Q("42.065399 mm")),
    Sketcher.Constraint("DistanceX", -1, 1, 2, 3, Q("48.400989 mm")),
    Sketcher.Constraint("DistanceY", 2, 3, -1, 1, Q("71.551012 mm")),
    Sketcher.Constraint("DistanceX", 1, 3, 0, 3, Q("39.863072 mm")),
    Sketcher.Constraint("DistanceX", 0, 3, 2, 3, Q("2.653241 mm")),
    Sketcher.Constraint("DistanceY", 3, 3, 2, 3, Q("11.242162 mm")),
    Sketcher.Constraint("DistanceY", 1, 3, 3, 3, Q("52.309972 mm")),
    Sketcher.Constraint("DistanceY", 0, 3, 5, 3, Q("86.995031 mm")),
    Sketcher.Constraint("DistanceY", 1, 3, 5, 3, Q("92.234709 mm")),
    Sketcher.Constraint("DistanceX", -1, 1, 5, 3, Q("43.447673 mm")),
])
pocket10 = doc.addObject("PartDesign::Pocket", "Pocket009")
body.addObject(pocket10)
pocket10.Profile = sketch13
pocket10.Length = 42

sketch14 = doc.addObject("Sketcher::SketchObject", "Sketch013")
body.addObject(sketch14)
sketch14.AttachmentSupport = (doc.XZ_Plane, [""])
sketch14.MapMode = "FlatFace"
sketch14.AttachmentOffset = App.Placement(V(0, 0, 5.4125), App.Rotation())
sketch14.addGeometry(Part.Circle(V(25, -65, 0), V(0, 0, 1), 19), False)
sketch14.addConstraint([
    Sketcher.Constraint("Diameter", 0, Q("37.8 mm")),
    Sketcher.Constraint("DistanceX", -1, 1, 0, 3, Q("24.583835 mm")),
    Sketcher.Constraint("DistanceY", 0, 3, -1, 1, Q("64.593887 mm")),
])
pocket11 = doc.addObject("PartDesign::Pocket", "Pocket010")
body.addObject(pocket11)
pocket11.Profile = sketch14
pocket11.Length = 30

sketch15 = doc.addObject("Sketcher::SketchObject", "Sketch014")
body.addObject(sketch15)
sketch15.AttachmentSupport = (doc.XZ_Plane, [""])
sketch15.MapMode = "FlatFace"
sketch15.AttachmentOffset = App.Placement(V(0, 0, -14.5875), App.Rotation())
sketch15.addGeometry([
    Part.LineSegment(V(0, -65, 0), V(-40, -65, 0)),
    Part.LineSegment(V(-40, -65, 0), V(-40, -35, 0)),
    Part.LineSegment(V(-40, -35, 0), V(10, -35, 0)),
    Part.ArcOfCircle(Part.Circle(V(10, -45, 0), V(0, 0, 1), 10), math.radians(90), math.radians(180)),
    Part.LineSegment(V(0, -45, 0), V(0, -65, 0)),
    Part.Circle(V(-20, -50, 0), V(0, 0, 1), 7),
], False)
sketch15.addConstraint([
    Sketcher.Constraint("Coincident", 0, 2, 1, 1),
    Sketcher.Constraint("Coincident", 1, 2, 2, 1),
    Sketcher.Constraint("Tangent", 2, 2, 3, 1),
    Sketcher.Constraint("Tangent", 3, 2, 4, 1),
    Sketcher.Constraint("Coincident", 4, 2, 0, 1),
    Sketcher.Constraint("Horizontal", 0),
    Sketcher.Constraint("Vertical", 1),
    Sketcher.Constraint("Horizontal", 2),
    Sketcher.Constraint("Vertical", 4),
    Sketcher.Constraint("PointOnObject", 3, 2, -2),
    Sketcher.Constraint("Diameter", 5, Q("14 mm")),
    Sketcher.Constraint("Radius", 3, Q("10 mm")),
    Sketcher.Constraint("DistanceX", 0, 2, 0, 1, Q("40 mm")),
    Sketcher.Constraint("DistanceY", 1, 1, 1, 2, Q("30 mm")),
    Sketcher.Constraint("DistanceY", 3, 3, -1, 1, Q("45 mm")),
    Sketcher.Constraint("DistanceX", 5, 3, -1, 1, Q("20 mm")),
    Sketcher.Constraint("DistanceY", 5, 3, -1, 1, Q("50 mm")),
])
pad4 = doc.addObject("PartDesign::Pad", "Pad003")
body.addObject(pad4)
pad4.Profile = sketch15
pad4.Length = 3.175

doc.recompute()
